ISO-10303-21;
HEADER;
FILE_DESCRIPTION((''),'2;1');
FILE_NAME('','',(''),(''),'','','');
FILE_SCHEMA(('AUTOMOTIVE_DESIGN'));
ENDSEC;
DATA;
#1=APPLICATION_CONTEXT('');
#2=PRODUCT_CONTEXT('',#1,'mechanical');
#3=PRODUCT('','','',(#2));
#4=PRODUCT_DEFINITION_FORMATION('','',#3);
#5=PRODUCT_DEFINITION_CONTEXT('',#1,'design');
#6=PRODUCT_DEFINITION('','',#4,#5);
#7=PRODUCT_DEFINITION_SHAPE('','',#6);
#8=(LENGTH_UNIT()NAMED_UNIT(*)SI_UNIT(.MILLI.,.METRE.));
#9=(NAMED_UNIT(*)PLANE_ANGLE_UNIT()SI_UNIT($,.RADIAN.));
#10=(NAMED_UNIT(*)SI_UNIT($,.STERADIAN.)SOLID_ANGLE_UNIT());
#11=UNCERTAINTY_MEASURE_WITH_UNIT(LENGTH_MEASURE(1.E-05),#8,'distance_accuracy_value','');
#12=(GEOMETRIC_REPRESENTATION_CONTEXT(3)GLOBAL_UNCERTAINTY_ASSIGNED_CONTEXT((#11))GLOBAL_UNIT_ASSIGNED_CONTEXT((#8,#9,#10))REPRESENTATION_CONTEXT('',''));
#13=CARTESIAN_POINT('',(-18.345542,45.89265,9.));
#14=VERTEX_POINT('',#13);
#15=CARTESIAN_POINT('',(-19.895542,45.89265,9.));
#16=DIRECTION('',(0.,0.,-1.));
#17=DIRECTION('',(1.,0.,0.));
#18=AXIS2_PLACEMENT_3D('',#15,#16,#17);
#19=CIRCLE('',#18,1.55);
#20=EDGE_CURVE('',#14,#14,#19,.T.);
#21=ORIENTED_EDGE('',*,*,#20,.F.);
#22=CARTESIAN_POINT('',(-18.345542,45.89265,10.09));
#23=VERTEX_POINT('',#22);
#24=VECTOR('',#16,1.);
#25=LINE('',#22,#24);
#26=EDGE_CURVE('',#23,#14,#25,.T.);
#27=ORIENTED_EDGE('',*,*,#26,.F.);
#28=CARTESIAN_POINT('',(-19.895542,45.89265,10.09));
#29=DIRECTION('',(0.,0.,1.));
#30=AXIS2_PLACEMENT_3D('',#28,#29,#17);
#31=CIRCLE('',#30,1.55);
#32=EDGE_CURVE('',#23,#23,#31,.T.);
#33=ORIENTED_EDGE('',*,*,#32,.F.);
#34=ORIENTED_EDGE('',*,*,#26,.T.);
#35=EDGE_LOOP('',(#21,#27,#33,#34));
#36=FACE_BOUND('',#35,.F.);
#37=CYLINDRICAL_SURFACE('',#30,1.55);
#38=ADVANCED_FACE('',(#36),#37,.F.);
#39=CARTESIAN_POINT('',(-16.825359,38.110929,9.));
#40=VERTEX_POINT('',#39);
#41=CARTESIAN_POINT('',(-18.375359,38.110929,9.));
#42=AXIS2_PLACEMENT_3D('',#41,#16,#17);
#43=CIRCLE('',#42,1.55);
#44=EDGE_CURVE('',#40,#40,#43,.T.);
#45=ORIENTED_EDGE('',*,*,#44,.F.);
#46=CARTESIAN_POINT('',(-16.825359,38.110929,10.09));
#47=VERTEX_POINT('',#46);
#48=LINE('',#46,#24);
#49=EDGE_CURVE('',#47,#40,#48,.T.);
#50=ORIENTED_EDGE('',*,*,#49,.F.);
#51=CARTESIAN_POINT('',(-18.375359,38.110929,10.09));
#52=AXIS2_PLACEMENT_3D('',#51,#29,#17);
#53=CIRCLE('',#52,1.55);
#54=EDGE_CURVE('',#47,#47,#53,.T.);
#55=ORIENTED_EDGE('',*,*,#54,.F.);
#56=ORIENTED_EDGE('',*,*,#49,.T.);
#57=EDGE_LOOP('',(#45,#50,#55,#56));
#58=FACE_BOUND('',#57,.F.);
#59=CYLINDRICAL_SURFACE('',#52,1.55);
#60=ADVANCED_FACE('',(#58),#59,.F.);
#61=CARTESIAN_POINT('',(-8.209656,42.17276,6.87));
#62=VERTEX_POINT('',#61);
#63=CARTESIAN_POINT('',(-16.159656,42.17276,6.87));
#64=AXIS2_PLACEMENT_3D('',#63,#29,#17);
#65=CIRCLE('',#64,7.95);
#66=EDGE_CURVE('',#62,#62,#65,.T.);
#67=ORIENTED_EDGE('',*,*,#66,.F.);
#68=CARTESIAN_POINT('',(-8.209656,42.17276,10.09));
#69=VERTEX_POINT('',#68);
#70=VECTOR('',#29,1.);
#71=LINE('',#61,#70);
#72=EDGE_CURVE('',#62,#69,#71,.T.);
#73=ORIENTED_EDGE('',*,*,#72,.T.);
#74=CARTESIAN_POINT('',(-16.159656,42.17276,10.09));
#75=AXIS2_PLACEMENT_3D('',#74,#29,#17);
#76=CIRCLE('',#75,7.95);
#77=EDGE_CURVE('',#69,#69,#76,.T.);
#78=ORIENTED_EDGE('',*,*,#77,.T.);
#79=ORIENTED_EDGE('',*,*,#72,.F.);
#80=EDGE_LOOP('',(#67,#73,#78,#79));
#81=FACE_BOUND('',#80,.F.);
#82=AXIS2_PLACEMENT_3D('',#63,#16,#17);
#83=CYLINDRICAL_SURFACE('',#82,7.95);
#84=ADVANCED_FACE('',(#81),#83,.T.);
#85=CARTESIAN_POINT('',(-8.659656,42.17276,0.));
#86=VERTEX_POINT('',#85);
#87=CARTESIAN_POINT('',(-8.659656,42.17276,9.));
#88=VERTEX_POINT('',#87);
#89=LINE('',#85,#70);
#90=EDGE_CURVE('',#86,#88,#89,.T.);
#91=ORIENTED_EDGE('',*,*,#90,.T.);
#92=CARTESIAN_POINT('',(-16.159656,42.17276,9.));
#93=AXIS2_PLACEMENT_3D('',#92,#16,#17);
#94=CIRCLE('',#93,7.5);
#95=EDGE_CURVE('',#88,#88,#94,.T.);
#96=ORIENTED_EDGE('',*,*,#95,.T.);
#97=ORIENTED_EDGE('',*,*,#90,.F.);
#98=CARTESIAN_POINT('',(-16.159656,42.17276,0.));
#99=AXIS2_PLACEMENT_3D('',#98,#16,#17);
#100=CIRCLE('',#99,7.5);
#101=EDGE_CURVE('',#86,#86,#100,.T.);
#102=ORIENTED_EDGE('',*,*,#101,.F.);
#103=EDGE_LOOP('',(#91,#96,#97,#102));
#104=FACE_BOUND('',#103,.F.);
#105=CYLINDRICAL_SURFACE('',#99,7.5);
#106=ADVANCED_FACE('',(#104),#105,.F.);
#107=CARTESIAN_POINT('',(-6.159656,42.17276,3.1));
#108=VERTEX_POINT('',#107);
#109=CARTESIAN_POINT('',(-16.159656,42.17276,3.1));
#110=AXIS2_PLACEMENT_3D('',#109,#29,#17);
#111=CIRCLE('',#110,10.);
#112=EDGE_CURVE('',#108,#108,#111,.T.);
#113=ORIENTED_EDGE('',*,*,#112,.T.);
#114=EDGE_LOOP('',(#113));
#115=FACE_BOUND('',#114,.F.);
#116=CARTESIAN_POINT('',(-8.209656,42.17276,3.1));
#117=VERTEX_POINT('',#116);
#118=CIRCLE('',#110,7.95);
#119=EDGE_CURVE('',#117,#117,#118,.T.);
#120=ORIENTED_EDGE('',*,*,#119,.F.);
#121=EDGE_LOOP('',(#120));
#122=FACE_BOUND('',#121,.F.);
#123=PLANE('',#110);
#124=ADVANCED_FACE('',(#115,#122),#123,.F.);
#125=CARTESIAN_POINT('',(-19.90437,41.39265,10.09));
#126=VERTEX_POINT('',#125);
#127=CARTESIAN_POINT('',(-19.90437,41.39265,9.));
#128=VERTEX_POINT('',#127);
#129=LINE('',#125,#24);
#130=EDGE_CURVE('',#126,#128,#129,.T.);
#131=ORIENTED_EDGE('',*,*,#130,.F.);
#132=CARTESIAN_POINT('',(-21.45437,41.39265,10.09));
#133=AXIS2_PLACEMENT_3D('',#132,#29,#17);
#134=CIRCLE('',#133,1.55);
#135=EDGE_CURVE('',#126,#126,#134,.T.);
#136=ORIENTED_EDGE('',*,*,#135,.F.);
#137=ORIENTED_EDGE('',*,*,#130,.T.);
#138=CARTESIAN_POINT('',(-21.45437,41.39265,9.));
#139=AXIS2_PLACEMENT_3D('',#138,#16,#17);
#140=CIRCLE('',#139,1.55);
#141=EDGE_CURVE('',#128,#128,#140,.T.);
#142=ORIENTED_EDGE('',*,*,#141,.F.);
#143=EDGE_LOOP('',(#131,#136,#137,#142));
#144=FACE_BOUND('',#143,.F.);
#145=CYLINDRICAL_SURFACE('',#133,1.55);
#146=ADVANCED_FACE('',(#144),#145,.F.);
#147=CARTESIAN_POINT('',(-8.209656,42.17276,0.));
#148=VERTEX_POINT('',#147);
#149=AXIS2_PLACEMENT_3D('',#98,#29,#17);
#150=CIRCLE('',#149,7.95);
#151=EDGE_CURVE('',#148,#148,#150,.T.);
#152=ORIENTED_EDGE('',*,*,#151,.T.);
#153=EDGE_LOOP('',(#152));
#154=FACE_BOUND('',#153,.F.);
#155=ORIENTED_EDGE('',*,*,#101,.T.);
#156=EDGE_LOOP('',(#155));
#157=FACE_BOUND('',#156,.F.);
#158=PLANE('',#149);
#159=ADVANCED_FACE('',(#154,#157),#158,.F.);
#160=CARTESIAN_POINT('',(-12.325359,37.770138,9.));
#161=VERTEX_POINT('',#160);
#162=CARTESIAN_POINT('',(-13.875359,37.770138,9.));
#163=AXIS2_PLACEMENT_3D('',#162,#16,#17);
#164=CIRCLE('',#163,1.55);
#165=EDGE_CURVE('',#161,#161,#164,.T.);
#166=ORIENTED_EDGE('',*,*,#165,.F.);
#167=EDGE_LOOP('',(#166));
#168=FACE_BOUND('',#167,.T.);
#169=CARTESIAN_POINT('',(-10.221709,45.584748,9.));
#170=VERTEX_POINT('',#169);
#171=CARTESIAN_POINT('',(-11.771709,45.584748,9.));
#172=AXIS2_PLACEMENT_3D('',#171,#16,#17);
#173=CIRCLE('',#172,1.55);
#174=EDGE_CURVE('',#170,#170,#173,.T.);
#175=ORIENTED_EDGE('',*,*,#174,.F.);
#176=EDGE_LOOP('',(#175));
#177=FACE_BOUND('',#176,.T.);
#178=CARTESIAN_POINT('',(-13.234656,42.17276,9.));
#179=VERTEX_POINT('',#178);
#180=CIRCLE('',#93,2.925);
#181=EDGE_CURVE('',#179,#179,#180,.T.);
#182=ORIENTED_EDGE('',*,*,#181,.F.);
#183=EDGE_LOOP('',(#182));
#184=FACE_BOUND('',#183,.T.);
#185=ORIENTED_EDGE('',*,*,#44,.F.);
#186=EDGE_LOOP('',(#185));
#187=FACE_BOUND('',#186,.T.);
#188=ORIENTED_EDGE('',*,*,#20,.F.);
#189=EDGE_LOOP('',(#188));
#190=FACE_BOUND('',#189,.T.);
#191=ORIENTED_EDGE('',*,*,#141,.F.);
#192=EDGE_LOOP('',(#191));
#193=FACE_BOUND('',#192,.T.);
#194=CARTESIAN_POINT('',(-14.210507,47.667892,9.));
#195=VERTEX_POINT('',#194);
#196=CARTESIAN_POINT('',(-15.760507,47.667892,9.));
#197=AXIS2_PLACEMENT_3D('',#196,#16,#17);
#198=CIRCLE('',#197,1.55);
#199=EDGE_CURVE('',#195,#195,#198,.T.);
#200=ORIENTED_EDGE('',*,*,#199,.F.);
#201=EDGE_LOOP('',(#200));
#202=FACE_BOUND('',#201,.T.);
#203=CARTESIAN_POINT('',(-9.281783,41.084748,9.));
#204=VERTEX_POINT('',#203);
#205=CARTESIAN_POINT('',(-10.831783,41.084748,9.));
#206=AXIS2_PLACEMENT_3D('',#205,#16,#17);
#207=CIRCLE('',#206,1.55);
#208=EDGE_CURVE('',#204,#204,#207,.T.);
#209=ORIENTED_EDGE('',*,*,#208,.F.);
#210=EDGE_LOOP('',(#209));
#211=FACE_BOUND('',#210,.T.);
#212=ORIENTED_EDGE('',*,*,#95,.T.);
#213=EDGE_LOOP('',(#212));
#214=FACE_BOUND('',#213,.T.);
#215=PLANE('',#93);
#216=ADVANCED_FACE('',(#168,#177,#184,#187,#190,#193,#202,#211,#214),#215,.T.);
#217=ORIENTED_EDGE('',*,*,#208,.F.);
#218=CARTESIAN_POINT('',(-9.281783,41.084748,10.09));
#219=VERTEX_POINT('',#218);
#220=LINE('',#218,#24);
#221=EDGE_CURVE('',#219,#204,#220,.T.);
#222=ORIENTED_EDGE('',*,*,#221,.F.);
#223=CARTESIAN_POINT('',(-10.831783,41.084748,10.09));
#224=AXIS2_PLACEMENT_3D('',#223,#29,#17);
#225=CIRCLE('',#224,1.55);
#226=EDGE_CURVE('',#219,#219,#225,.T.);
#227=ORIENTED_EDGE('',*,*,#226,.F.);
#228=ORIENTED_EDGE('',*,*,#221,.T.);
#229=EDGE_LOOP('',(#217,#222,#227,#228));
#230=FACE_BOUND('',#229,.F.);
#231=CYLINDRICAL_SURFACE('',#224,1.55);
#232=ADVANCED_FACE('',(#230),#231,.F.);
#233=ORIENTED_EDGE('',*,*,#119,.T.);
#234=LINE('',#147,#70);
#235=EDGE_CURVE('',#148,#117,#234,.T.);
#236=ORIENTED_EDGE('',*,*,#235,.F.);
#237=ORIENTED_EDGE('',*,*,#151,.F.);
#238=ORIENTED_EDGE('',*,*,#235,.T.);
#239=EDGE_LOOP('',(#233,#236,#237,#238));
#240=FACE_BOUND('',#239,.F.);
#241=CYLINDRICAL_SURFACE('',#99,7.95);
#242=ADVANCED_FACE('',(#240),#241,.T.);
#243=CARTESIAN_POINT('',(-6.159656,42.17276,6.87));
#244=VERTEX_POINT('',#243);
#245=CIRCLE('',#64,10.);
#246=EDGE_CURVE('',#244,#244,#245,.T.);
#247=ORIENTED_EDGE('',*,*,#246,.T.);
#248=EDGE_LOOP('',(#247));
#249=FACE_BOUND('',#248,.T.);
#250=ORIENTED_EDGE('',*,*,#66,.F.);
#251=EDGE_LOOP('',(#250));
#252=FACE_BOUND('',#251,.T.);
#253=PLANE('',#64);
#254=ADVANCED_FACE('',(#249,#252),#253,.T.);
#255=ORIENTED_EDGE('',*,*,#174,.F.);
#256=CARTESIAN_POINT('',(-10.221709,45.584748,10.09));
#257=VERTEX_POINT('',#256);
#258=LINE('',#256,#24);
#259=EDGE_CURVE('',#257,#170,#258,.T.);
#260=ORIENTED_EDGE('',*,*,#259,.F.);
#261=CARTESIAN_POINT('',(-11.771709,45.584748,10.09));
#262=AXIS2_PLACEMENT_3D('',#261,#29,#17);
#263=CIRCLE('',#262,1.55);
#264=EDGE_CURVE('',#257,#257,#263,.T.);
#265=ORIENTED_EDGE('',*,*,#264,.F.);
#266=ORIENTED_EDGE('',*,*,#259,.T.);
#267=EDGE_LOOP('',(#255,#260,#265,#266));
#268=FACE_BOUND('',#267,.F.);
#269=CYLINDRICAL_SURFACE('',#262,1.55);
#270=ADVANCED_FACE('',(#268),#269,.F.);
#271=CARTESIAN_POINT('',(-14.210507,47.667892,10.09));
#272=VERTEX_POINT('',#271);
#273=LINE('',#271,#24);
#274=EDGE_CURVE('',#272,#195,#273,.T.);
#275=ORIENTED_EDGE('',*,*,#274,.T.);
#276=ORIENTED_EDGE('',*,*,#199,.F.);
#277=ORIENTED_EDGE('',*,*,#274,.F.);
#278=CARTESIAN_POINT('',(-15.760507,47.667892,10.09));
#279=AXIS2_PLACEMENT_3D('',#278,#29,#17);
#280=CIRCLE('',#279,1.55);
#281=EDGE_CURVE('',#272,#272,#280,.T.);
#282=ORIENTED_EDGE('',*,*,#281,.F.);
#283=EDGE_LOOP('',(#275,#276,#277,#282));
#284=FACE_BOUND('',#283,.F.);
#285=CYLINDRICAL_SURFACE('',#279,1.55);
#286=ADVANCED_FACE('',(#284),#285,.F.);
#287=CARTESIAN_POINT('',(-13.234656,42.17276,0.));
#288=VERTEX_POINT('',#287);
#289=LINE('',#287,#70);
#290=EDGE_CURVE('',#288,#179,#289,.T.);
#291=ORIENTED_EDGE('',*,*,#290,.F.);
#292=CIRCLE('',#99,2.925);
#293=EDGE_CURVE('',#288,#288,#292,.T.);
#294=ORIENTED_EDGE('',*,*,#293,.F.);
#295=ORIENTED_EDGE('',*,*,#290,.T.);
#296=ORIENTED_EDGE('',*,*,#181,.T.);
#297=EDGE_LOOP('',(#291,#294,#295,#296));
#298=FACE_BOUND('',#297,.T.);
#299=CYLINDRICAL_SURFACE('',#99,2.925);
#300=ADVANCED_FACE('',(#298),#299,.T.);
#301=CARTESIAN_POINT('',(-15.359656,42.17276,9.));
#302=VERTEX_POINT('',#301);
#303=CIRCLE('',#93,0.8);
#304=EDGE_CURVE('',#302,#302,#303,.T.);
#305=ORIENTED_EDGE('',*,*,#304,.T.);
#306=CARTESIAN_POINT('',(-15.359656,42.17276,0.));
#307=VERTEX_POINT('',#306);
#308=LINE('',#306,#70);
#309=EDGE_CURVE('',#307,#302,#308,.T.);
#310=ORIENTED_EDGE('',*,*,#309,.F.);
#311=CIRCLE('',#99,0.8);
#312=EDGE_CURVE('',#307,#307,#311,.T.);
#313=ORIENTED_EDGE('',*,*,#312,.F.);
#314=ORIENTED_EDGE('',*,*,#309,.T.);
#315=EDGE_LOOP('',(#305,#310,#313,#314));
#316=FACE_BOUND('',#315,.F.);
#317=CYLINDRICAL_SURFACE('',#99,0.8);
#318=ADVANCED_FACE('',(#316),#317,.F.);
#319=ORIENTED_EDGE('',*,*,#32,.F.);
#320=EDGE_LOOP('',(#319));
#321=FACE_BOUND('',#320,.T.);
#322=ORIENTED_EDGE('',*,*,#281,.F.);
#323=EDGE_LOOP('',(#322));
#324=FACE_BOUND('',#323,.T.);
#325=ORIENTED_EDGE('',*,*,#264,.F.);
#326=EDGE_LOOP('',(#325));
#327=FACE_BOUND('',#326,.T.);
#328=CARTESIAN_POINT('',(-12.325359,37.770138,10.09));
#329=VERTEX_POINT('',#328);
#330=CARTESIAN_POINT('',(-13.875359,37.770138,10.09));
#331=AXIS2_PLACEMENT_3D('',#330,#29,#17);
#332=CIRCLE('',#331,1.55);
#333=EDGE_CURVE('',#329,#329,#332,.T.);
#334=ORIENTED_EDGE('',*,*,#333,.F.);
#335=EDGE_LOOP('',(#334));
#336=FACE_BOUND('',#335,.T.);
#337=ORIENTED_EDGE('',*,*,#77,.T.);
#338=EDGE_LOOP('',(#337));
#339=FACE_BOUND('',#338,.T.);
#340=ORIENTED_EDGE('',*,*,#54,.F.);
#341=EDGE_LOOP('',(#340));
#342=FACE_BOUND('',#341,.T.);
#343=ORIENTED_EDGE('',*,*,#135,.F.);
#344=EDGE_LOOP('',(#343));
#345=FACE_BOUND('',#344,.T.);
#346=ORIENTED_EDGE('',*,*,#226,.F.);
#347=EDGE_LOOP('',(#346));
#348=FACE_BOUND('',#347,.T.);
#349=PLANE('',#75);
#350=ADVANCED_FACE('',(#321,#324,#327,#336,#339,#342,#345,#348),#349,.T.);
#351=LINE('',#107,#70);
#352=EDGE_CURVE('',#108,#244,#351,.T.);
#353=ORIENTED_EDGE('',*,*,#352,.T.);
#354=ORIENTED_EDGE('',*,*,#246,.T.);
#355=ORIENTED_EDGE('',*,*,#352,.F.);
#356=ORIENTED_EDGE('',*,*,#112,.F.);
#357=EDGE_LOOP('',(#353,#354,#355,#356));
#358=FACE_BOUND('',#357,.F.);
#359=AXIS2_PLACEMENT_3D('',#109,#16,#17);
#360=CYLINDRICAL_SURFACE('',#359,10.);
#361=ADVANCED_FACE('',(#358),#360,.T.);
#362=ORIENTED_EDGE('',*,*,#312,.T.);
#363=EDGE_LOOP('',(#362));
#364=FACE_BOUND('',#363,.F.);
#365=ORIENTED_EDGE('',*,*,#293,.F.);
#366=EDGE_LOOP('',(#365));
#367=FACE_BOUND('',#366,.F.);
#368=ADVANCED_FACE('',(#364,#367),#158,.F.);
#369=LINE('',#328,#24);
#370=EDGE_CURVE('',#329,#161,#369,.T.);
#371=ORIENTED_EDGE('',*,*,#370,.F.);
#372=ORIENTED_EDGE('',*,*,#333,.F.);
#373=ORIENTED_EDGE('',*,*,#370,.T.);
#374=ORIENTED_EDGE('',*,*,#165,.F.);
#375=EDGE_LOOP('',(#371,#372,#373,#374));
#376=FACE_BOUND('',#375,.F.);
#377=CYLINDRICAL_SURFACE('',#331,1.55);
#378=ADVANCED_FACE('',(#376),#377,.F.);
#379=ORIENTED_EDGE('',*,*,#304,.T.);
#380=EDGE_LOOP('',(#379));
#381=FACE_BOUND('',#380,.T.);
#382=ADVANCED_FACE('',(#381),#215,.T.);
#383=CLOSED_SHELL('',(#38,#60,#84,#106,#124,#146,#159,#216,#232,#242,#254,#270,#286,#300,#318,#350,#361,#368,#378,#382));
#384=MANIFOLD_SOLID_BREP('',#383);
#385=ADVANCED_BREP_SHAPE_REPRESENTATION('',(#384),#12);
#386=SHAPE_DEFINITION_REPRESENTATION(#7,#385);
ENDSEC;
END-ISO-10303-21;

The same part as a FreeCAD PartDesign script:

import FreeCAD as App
import Part
import Sketcher
Q = App.Units.Quantity

doc = App.newDocument("Part")
body = doc.addObject("PartDesign::Body", "Body")

# Sketch on XY plane
sketch1 = body.newObject("Sketcher::SketchObject", "Sketch")
sketch1.AttachmentSupport = (doc.getObject("XY_Plane"), [""])
sketch1.MapMode = "FlatFace"
sketch1.addGeometry(Part.Circle(App.Vector(-16.159656, 42.17276, 0), App.Vector(0, 0, 1), 7.95), False)
sketch1.addConstraint(Sketcher.Constraint("Diameter", 0, Q("15.9 mm")))
sketch1.addConstraint(Sketcher.Constraint("DistanceY", -1, 1, 0, 3, Q("42.17276 mm")))
sketch1.addConstraint(Sketcher.Constraint("DistanceX", 0, 3, -1, 1, Q("16.159656 mm")))
pad1 = body.newObject("PartDesign::Pad", "Pad")
pad1.Profile = sketch1
pad1.Length = 3.1

# Sketch on XY plane
sketch2 = body.newObject("Sketcher::SketchObject", "Sketch001")
sketch2.AttachmentSupport = (doc.getObject("XY_Plane"), [""])
sketch2.MapMode = "FlatFace"
sketch2.AttachmentOffset = App.Placement(App.Vector(0, 0, 3.1), App.Rotation())
sketch2.addGeometry(Part.Circle(App.Vector(-16.159656, 42.17276, 0), App.Vector(0, 0, 1), 10), False)
sketch2.addConstraint(Sketcher.Constraint("Diameter", 0, Q("20 mm")))
sketch2.addConstraint(Sketcher.Constraint("DistanceY", -1, 1, 0, 3, Q("42.17276 mm")))
sketch2.addConstraint(Sketcher.Constraint("DistanceX", 0, 3, -1, 1, Q("16.159656 mm")))
pad2 = body.newObject("PartDesign::Pad", "Pad001")
pad2.Profile = sketch2
pad2.Length = 3.77

# Sketch on XY plane
sketch3 = body.newObject("Sketcher::SketchObject", "Sketch002")
sketch3.AttachmentSupport = (doc.getObject("XY_Plane"), [""])
sketch3.MapMode = "FlatFace"
sketch3.AttachmentOffset = App.Placement(App.Vector(0, 0, 6.87), App.Rotation())
sketch3.addGeometry(Part.Circle(App.Vector(-16.159656, 42.17276, 0), App.Vector(0, 0, 1), 7.95), False)
sketch3.addConstraint(Sketcher.Constraint("Diameter", 0, Q("15.9 mm")))
sketch3.addConstraint(Sketcher.Constraint("DistanceY", -1, 1, 0, 3, Q("42.17276 mm")))
sketch3.addConstraint(Sketcher.Constraint("DistanceX", 0, 3, -1, 1, Q("16.159656 mm")))
pad3 = body.newObject("PartDesign::Pad", "Pad002")
pad3.Profile = sketch3
pad3.Length = 3.22

# Sketch on XY plane
sketch4 = body.newObject("Sketcher::SketchObject", "Sketch003")
sketch4.AttachmentSupport = (doc.getObject("XY_Plane"), [""])
sketch4.MapMode = "FlatFace"
sketch4.AttachmentOffset = App.Placement(App.Vector(0, 0, 10.09), App.Rotation())
sketch4.addGeometry(Part.Circle(App.Vector(-15.760507, 47.667892, 0), App.Vector(0, 0, 1), 1.55), False)
sketch4.addGeometry(Part.Circle(App.Vector(-19.895542, 45.89265, 0), App.Vector(0, 0, 1), 1.55), False)
sketch4.addGeometry(Part.Circle(App.Vector(-21.45437, 41.39265, 0), App.Vector(0, 0, 1), 1.55), False)
sketch4.addGeometry(Part.Circle(App.Vector(-18.375359, 38.110929, 0), App.Vector(0, 0, 1), 1.55), False)
sketch4.addGeometry(Part.Circle(App.Vector(-13.875359, 37.770138, 0), App.Vector(0, 0, 1), 1.55), False)
sketch4.addGeometry(Part.Circle(App.Vector(-10.831783, 41.084748, 0), App.Vector(0, 0, 1), 1.55), False)
sketch4.addGeometry(Part.Circle(App.Vector(-11.771709, 45.584748, 0), App.Vector(0, 0, 1), 1.55), False)
sketch4.addConstraint(Sketcher.Constraint("Equal", 0, 1))
sketch4.addConstraint(Sketcher.Constraint("Equal", 1, 2))
sketch4.addConstraint(Sketcher.Constraint("Equal", 2, 3))
sketch4.addConstraint(Sketcher.Constraint("Equal", 3, 4))
sketch4.addConstraint(Sketcher.Constraint("Equal", 4, 5))
sketch4.addConstraint(Sketcher.Constraint("Equal", 5, 6))
sketch4.addConstraint(Sketcher.Constraint("Diameter", 0, Q("3.1 mm")))
sketch4.addConstraint(Sketcher.Constraint("DistanceY", 2, 3, 1, 3, Q("4.5 mm")))
sketch4.addConstraint(Sketcher.Constraint("DistanceX", 3, 3, 4, 3, Q("4.5 mm")))
sketch4.addConstraint(Sketcher.Constraint("DistanceY", 5, 3, 6, 3, Q("4.5 mm")))
sketch4.addConstraint(Sketcher.Constraint("DistanceX", 0, 3, 6, 3, Q("3.988798 mm")))
sketch4.addConstraint(Sketcher.Constraint("DistanceY", -1, 1, 1, 3, Q("45.89265 mm")))
sketch4.addConstraint(Sketcher.Constraint("DistanceX", 2, 3, -1, 1, Q("21.45437 mm")))
sketch4.addConstraint(Sketcher.Constraint("DistanceX", 3, 3, -1, 1, Q("18.375359 mm")))
sketch4.addConstraint(Sketcher.Constraint("DistanceY", -1, 1, 3, 3, Q("38.110929 mm")))
sketch4.addConstraint(Sketcher.Constraint("DistanceX", 6, 3, -1, 1, Q("11.771709 mm")))
sketch4.addConstraint(Sketcher.Constraint("DistanceY", 1, 3, 0, 3, Q("1.775242 mm")))
sketch4.addConstraint(Sketcher.Constraint("DistanceY", 4, 3, 3, 3, Q("0.340791 mm")))
sketch4.addConstraint(Sketcher.Constraint("DistanceY", 4, 3, 5, 3, Q("3.31461 mm")))
sketch4.addConstraint(Sketcher.Constraint("DistanceX", 1, 3, 5, 3, Q("9.06376 mm")))
sketch4.addConstraint(Sketcher.Constraint("DistanceX", 1, 3, -1, 1, Q("19.895542 mm")))
pocket1 = body.newObject("PartDesign::Pocket", "Pocket")
pocket1.Profile = sketch4
pocket1.Length = 25

# Sketch on XY plane
sketch5 = body.newObject("Sketcher::SketchObject", "Sketch004")
sketch5.AttachmentSupport = (doc.getObject("XY_Plane"), [""])
sketch5.MapMode = "FlatFace"
sketch5.addGeometry(Part.Circle(App.Vector(-16.159656, 42.17276, 0), App.Vector(0, 0, 1), 7.5), False)
sketch5.addGeometry(Part.Circle(App.Vector(-19.895542, 45.89265, 0), App.Vector(0, 0, 1), 1.55), False)
sketch5.addGeometry(Part.Circle(App.Vector(-15.760507, 47.667892, 0), App.Vector(0, 0, 1), 1.55), False)
sketch5.addGeometry(Part.Circle(App.Vector(-11.771709, 45.584748, 0), App.Vector(0, 0, 1), 1.55), False)
sketch5.addGeometry(Part.Circle(App.Vector(-21.45437, 41.39265, 0), App.Vector(0, 0, 1), 1.55), False)
sketch5.addGeometry(Part.Circle(App.Vector(-16.159656, 42.17276, 0), App.Vector(0, 0, 1), 2.925), False)
sketch5.addGeometry(Part.Circle(App.Vector(-18.375359, 38.110929, 0), App.Vector(0, 0, 1), 1.55), False)
sketch5.addGeometry(Part.Circle(App.Vector(-10.831783, 41.084748, 0), App.Vector(0, 0, 1), 1.55), False)
sketch5.addGeometry(Part.Circle(App.Vector(-13.875359, 37.770138, 0), App.Vector(0, 0, 1), 1.55), False)
sketch5.addGeometry(Part.Circle(App.Vector(-16.159656, 42.17276, 0), App.Vector(0, 0, 1), 0.8), False)
sketch5.addConstraint(Sketcher.Constraint("Coincident", 5, 3, 0, 3))
sketch5.addConstraint(Sketcher.Constraint("Coincident", 9, 3, 0, 3))
sketch5.addConstraint(Sketcher.Constraint("Equal", 1, 2))
sketch5.addConstraint(Sketcher.Constraint("Equal", 2, 3))
sketch5.addConstraint(Sketcher.Constraint("Equal", 3, 4))
sketch5.addConstraint(Sketcher.Constraint("Equal", 4, 6))
sketch5.addConstraint(Sketcher.Constraint("Equal", 6, 7))
sketch5.addConstraint(Sketcher.Constraint("Equal", 7, 8))
sketch5.addConstraint(Sketcher.Constraint("Diameter", 0, Q("15 mm")))
sketch5.addConstraint(Sketcher.Constraint("Diameter", 1, Q("3.1 mm")))
sketch5.addConstraint(Sketcher.Constraint("Diameter", 9, Q("1.6 mm")))
sketch5.addConstraint(Sketcher.Constraint("Diameter", 5, Q("5.85 mm")))
sketch5.addConstraint(Sketcher.Constraint("DistanceY", 4, 3, 1, 3, Q("4.5 mm")))
sketch5.addConstraint(Sketcher.Constraint("DistanceY", 7, 3, 3, 3, Q("4.5 mm")))
sketch5.addConstraint(Sketcher.Constraint("DistanceX", 6, 3, 8, 3, Q("4.5 mm")))
sketch5.addConstraint(Sketcher.Constraint("DistanceX", 2, 3, 3, 3, Q("3.988798 mm")))
sketch5.addConstraint(Sketcher.Constraint("DistanceY", -1, 1, 0, 3, Q("42.17276 mm")))
sketch5.addConstraint(Sketcher.Constraint("DistanceY", -1, 1, 1, 3, Q("45.89265 mm")))
sketch5.addConstraint(Sketcher.Constraint("DistanceX", 3, 3, -1, 1, Q("11.771709 mm")))
sketch5.addConstraint(Sketcher.Constraint("DistanceX", 4, 3, -1, 1, Q("21.45437 mm")))
sketch5.addConstraint(Sketcher.Constraint("DistanceX", 6, 3, -1, 1, Q("18.375359 mm")))
sketch5.addConstraint(Sketcher.Constraint("DistanceY", -1, 1, 6, 3, Q("38.110929 mm")))
sketch5.addConstraint(Sketcher.Constraint("DistanceY", 1, 3, 2, 3, Q("1.775242 mm")))
sketch5.addConstraint(Sketcher.Constraint("DistanceX", 0, 3, 2, 3, Q("0.399149 mm")))
sketch5.addConstraint(Sketcher.Constraint("DistanceY", 6, 3, 7, 3, Q("2.973819 mm")))
sketch5.addConstraint(Sketcher.Constraint("DistanceY", 8, 3, 7, 3, Q("3.31461 mm")))
sketch5.addConstraint(Sketcher.Constraint("DistanceX", 1, 3, -1, 1, Q("19.895542 mm")))
sketch5.addConstraint(Sketcher.Constraint("DistanceX", 7, 3, -1, 1, Q("10.831783 mm")))
pocket2 = body.newObject("PartDesign::Pocket", "Pocket001")
pocket2.Profile = sketch5
pocket2.Length = 9
pocket2.Reversed = True

doc.recompute()
